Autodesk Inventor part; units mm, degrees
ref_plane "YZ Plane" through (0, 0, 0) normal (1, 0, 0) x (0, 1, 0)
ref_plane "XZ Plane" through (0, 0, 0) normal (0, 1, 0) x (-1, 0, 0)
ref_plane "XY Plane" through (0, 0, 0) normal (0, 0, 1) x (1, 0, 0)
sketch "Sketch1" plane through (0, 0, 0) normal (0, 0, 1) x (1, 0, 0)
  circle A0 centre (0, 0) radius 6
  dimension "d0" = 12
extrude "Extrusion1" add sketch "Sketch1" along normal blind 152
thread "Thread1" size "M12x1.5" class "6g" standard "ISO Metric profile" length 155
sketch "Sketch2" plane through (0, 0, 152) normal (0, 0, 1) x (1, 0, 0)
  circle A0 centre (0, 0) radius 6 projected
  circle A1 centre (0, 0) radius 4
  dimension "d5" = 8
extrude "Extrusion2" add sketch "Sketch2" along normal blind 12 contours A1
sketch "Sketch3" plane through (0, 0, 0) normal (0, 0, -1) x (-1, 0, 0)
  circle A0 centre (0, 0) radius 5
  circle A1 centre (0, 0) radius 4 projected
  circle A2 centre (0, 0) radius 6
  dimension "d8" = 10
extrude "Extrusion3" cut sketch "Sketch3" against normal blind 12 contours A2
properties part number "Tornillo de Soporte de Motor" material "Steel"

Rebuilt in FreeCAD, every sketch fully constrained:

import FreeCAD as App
import Part
import Sketcher
from FreeCAD import Vector
Q = App.Units.Quantity

doc = App.newDocument("Part")
params = doc.addObject("Spreadsheet::Sheet", "Params")
for row, (alias, value) in enumerate([
    ("sketch1_diameter", "12 mm"),
    ("pad1_length", "152 mm"),
    ("sketch2_diameter", "8 mm"),
    ("pad2_length", "12 mm"),
    ("sketch3_diameter", "10 mm"),
    ("sketch3_diameter2", "12 mm"),
    ("pocket1_length", "12 mm"),
], start=1):
    params.set(f"A{row}", alias)
    params.set(f"B{row}", "=" + value)
    params.setAlias(f"B{row}", alias)

body = doc.addObject("PartDesign::Body", "Body")

# Sketch on XY plane
sketch1 = body.newObject("Sketcher::SketchObject", "Sketch")
sketch1.AttachmentSupport = (doc.getObject("XY_Plane"), [""])
sketch1.MapMode = "FlatFace"
sketch1.addGeometry(Part.Circle(Vector(0, 0, 0), Vector(0, 0, 1), 6), False)
sketch1.addConstraint([
    Sketcher.Constraint("Coincident", 0, 3, -1, 1),
    Sketcher.Constraint("Diameter", 0, Q("12 mm")),
])
sketch1.setExpression("Constraints[1]", "Params.sketch1_diameter")
pad1 = body.newObject("PartDesign::Pad", "Pad")
pad1.Profile = sketch1
pad1.setExpression("Length", "Params.pad1_length")

# Sketch on XY plane
sketch2 = body.newObject("Sketcher::SketchObject", "Sketch001")
sketch2.AttachmentSupport = (doc.getObject("XY_Plane"), [""])
sketch2.MapMode = "FlatFace"
sketch2.AttachmentOffset = App.Placement(Vector(0, 0, 152), App.Rotation())
sketch2.addGeometry(Part.Circle(Vector(0, 0, 0), Vector(0, 0, 1), 4), False)
sketch2.addConstraint([
    Sketcher.Constraint("Coincident", 0, 3, -1, 1),
    Sketcher.Constraint("Diameter", 0, Q("8 mm")),
])
sketch2.setExpression("Constraints[1]", "Params.sketch2_diameter")
pad2 = body.newObject("PartDesign::Pad", "Pad001")
pad2.Profile = sketch2
pad2.setExpression("Length", "Params.pad2_length")

# Sketch on XY plane
sketch3 = body.newObject("Sketcher::SketchObject", "Sketch002")
sketch3.AttachmentSupport = (doc.getObject("XY_Plane"), [""])
sketch3.MapMode = "FlatFace"
sketch3.addGeometry([
    Part.Circle(Vector(0, 0, 0), Vector(0, 0, 1), 6),
    Part.Circle(Vector(0, 0, 0), Vector(0, 0, 1), 5),
], False)
sketch3.addConstraint([
    Sketcher.Constraint("Coincident", 0, 3, -1, 1),
    Sketcher.Constraint("Coincident", 1, 3, -1, 1),
    Sketcher.Constraint("Diameter", 1, Q("10 mm")),
    Sketcher.Constraint("Diameter", 0, Q("12 mm")),
])
sketch3.setExpression("Constraints[2]", "Params.sketch3_diameter")
sketch3.setExpression("Constraints[3]", "Params.sketch3_diameter2")
pocket1 = body.newObject("PartDesign::Pocket", "Pocket")
pocket1.Profile = sketch3
pocket1.setExpression("Length", "Params.pocket1_length")
pocket1.Reversed = True

doc.recompute()
